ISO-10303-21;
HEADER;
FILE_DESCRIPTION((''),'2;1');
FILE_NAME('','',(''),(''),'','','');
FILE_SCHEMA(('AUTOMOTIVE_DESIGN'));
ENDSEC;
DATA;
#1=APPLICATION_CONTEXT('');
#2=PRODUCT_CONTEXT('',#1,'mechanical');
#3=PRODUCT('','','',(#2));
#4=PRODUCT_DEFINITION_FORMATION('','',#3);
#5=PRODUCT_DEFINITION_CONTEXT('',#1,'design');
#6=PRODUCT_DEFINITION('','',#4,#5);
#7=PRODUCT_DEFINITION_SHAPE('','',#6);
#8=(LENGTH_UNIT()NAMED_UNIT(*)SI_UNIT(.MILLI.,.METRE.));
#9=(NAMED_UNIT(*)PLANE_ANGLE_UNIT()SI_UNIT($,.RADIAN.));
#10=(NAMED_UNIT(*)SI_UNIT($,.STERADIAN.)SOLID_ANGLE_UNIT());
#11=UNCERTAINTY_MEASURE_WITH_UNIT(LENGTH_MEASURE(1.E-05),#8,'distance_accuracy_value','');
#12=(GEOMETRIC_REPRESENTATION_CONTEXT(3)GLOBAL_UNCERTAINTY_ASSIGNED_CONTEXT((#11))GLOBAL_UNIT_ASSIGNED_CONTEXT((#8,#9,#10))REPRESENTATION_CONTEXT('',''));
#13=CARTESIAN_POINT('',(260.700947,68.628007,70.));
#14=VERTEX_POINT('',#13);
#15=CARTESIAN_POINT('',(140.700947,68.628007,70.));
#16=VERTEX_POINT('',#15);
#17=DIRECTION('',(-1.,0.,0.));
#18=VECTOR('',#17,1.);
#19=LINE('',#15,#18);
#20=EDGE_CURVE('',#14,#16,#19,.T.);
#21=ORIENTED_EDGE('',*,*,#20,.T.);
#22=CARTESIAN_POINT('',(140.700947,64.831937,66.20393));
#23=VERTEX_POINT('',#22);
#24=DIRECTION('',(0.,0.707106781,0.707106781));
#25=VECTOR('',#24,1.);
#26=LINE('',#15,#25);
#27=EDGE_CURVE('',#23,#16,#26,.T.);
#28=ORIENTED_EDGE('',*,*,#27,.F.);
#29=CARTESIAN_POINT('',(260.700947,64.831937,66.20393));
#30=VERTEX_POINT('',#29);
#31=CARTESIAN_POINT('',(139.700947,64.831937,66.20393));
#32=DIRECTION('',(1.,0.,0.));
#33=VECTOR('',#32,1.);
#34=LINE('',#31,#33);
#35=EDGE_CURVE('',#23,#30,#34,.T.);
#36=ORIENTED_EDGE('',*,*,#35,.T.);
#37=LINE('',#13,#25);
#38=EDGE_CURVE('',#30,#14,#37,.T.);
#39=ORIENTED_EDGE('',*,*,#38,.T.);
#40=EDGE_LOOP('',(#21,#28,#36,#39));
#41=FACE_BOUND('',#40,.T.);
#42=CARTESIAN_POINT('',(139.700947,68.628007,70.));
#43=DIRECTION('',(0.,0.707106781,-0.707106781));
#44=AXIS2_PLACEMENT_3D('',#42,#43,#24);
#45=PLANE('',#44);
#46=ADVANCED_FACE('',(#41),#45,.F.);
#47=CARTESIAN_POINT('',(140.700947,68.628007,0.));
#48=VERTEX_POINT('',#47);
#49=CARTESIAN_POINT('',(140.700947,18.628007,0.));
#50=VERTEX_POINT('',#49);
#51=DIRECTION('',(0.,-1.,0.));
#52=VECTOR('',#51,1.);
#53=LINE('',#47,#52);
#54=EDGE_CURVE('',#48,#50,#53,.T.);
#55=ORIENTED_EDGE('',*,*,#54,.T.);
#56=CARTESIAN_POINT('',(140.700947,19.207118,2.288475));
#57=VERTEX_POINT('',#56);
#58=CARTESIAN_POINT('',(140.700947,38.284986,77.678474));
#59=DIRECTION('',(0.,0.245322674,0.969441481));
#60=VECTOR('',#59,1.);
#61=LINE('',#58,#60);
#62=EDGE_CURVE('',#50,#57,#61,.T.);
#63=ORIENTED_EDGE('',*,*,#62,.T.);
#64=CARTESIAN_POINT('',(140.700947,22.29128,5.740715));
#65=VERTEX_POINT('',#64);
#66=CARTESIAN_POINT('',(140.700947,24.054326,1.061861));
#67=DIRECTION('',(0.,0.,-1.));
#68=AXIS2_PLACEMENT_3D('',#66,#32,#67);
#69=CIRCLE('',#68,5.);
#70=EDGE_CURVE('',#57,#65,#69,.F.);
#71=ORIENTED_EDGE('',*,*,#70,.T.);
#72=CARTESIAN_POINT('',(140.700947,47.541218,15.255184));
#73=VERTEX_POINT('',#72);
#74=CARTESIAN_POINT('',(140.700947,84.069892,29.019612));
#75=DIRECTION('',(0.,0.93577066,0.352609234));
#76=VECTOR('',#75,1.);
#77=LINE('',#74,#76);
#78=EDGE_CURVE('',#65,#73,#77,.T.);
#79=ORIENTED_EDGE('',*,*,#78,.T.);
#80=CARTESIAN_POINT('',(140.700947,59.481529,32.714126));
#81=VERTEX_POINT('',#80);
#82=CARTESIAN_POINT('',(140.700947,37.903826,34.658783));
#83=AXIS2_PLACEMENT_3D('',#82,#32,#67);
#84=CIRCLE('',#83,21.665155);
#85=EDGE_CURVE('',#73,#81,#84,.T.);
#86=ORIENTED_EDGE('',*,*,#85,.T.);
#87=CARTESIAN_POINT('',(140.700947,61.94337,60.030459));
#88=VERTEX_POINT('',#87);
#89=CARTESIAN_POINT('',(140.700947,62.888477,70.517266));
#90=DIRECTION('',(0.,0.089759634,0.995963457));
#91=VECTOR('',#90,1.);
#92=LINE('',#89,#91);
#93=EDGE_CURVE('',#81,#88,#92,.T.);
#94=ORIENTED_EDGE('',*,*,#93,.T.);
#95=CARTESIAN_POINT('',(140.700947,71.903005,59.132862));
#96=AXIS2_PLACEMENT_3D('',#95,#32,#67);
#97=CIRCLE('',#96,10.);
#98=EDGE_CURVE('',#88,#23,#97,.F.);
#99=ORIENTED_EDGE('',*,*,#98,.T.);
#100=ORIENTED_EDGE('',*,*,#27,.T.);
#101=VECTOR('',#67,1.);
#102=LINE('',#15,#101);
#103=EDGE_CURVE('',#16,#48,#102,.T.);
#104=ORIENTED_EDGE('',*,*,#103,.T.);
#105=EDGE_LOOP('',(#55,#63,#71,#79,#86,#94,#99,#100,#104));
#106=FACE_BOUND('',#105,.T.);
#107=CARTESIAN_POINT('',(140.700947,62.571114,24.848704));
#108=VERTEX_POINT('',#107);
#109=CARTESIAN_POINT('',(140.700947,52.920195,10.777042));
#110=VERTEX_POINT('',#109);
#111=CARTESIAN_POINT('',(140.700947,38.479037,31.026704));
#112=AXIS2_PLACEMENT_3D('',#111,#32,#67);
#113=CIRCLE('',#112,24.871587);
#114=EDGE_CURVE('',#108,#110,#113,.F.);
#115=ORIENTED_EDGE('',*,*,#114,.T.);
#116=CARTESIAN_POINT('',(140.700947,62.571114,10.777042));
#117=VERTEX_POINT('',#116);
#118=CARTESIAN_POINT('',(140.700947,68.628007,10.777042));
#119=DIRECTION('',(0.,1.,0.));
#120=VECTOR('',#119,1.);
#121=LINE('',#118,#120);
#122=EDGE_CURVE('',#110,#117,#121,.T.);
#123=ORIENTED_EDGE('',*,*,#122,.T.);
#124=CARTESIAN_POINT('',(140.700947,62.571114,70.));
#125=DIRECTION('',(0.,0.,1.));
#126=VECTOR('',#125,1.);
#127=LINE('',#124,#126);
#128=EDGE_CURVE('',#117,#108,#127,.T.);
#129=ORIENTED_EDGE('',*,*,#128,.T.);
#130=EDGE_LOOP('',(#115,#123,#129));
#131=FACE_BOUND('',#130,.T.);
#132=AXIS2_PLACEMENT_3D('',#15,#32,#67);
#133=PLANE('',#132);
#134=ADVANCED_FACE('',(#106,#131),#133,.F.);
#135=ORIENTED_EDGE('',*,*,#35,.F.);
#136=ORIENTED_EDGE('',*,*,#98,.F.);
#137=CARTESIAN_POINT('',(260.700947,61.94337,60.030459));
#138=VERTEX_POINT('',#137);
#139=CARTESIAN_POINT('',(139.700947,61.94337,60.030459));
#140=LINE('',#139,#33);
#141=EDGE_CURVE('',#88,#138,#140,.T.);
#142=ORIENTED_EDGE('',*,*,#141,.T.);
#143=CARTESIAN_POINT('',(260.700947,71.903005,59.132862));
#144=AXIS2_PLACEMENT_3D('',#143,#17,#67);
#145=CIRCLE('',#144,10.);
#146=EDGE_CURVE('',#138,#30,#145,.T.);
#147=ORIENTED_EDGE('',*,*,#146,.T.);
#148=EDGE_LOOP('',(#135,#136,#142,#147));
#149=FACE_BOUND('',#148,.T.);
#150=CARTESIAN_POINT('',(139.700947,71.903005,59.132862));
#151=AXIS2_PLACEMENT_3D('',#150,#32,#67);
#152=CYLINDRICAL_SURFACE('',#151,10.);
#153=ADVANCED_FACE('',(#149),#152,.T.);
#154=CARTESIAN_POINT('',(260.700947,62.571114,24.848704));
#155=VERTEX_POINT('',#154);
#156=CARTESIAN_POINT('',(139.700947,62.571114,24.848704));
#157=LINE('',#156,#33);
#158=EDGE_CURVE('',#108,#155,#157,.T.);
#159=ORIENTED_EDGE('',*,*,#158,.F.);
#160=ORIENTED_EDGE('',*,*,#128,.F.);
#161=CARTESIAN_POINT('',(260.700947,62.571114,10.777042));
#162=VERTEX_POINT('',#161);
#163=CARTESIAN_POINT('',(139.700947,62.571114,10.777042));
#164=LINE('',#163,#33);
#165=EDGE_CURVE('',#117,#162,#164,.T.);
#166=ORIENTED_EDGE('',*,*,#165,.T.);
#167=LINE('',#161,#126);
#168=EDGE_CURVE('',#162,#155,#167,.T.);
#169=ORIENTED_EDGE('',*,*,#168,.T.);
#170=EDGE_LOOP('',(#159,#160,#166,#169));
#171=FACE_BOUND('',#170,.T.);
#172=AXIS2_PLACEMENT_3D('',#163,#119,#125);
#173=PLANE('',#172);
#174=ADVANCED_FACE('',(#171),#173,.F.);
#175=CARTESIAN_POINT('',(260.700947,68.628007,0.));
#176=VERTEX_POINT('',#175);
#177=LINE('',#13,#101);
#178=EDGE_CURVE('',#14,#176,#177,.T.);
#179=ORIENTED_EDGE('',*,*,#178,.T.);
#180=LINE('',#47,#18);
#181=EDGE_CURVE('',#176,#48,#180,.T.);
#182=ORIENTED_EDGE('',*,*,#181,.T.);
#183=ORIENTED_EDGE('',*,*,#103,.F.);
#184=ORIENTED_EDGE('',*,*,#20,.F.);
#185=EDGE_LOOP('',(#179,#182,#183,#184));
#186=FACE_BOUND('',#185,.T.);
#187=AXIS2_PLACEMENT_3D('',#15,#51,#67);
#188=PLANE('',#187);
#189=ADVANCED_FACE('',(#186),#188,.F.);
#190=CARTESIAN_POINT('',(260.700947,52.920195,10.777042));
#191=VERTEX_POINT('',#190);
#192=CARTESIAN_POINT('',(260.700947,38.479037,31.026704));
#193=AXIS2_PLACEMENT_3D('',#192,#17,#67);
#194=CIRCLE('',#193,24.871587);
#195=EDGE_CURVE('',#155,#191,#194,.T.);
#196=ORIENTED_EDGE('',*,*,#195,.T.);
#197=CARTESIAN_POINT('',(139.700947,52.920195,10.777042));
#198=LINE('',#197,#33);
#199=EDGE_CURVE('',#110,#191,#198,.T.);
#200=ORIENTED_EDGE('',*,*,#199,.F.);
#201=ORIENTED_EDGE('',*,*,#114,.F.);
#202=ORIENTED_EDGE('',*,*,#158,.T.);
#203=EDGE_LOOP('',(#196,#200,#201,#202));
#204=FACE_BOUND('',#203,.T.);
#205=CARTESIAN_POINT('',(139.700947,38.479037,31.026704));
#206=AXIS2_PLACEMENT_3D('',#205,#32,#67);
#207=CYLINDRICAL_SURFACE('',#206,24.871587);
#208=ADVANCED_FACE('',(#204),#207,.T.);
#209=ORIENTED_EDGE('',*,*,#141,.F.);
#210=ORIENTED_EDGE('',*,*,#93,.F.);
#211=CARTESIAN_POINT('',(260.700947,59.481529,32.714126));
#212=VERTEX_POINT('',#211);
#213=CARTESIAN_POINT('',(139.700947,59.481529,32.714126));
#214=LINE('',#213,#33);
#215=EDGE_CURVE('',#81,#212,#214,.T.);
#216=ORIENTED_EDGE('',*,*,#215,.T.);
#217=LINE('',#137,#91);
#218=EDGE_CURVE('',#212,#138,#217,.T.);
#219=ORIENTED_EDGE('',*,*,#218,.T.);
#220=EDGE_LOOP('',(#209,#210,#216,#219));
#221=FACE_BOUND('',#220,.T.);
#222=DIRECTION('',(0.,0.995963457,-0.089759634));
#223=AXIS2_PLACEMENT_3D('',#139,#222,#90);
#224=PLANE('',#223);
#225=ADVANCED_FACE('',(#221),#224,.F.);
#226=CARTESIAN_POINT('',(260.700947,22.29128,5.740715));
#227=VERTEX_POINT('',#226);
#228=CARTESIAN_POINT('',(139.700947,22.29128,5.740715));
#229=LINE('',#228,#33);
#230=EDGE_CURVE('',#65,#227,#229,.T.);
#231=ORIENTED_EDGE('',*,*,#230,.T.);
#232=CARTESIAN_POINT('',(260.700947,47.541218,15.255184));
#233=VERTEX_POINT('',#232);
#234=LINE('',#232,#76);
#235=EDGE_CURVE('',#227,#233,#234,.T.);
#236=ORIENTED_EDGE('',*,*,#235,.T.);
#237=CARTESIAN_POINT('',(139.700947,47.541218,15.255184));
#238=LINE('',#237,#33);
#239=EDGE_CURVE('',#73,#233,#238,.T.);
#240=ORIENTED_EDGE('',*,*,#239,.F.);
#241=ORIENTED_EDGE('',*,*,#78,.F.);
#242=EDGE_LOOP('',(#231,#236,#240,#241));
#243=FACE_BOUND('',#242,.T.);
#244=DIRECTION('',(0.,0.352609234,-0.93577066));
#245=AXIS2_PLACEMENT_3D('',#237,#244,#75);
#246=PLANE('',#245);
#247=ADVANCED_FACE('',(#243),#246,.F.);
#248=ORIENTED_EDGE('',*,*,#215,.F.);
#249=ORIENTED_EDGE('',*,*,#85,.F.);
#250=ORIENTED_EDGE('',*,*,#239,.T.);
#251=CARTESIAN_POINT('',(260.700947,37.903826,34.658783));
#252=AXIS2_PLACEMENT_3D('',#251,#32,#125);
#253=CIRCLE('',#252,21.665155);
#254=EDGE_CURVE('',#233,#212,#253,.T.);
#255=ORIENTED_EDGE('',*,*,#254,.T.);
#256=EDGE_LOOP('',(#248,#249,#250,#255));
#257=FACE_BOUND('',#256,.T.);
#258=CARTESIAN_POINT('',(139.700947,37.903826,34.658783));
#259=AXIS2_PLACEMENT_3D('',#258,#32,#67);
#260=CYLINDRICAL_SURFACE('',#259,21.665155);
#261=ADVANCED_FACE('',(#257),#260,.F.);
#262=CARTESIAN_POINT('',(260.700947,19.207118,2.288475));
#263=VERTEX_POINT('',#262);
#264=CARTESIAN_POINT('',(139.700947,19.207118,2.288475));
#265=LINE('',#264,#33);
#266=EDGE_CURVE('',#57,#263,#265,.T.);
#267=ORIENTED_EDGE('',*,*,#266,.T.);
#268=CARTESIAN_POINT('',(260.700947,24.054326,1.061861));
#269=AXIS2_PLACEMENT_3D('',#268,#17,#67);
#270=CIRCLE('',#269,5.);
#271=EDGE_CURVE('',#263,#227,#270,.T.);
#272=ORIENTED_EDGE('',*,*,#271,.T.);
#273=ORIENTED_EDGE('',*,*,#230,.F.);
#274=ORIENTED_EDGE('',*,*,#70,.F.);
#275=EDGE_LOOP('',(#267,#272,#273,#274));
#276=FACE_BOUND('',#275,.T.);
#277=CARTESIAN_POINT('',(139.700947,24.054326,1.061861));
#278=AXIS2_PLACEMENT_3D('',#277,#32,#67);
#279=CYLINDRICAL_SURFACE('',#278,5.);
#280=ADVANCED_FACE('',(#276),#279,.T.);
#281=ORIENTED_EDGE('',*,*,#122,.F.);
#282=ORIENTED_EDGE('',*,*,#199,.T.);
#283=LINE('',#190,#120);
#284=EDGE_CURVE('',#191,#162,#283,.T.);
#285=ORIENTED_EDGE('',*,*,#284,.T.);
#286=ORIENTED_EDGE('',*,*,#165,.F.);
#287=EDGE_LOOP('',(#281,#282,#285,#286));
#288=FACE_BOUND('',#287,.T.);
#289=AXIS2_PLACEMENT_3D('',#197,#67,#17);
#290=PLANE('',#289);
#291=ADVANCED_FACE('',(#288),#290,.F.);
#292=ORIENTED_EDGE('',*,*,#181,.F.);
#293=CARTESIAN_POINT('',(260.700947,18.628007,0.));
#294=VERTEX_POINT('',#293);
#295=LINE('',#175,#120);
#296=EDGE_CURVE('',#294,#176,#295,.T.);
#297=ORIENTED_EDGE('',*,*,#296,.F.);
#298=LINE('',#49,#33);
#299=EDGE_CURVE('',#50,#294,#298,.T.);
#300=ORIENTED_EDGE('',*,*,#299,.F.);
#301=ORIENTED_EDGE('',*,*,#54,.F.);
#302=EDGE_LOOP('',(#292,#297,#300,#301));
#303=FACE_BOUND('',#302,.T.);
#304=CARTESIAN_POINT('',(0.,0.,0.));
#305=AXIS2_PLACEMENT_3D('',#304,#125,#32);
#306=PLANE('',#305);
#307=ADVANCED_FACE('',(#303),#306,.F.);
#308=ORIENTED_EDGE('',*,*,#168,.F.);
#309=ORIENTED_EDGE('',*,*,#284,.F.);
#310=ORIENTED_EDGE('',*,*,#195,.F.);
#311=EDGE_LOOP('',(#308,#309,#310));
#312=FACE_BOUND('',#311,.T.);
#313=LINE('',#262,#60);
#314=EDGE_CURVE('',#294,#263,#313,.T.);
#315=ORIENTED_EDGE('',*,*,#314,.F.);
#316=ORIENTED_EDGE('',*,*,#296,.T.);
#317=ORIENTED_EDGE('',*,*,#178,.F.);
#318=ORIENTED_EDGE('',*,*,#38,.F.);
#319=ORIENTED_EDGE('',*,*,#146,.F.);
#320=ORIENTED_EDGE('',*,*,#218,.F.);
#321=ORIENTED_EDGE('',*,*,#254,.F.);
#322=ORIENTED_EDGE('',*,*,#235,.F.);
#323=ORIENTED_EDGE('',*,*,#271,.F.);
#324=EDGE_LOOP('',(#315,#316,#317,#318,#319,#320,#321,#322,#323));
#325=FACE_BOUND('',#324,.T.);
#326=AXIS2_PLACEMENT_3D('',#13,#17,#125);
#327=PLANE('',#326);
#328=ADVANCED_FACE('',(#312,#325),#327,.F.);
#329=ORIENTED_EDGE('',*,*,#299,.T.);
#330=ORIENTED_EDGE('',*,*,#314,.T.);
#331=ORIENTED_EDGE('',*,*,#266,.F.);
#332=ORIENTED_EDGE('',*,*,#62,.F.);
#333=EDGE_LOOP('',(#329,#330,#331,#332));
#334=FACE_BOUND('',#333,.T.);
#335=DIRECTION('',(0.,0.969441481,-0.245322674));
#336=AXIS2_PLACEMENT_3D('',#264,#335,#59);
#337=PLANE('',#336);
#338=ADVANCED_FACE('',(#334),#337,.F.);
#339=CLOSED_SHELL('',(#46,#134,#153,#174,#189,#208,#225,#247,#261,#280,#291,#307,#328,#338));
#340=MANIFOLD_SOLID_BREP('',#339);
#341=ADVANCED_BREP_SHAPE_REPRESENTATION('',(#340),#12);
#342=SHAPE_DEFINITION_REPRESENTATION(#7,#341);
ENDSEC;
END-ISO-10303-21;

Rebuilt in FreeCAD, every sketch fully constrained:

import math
import FreeCAD as App
import Part
import Sketcher
from FreeCAD import Vector
Q = App.Units.Quantity


def add_polygon(sketch, points):
    """Adds a closed chain of lines whose ends are joined by coincident constraints."""
    first, n = sketch.GeometryCount, len(points)
    for a, b in zip(points, points[1:] + points[:1]):
        sketch.addGeometry(Part.LineSegment(App.Vector(*a, 0), App.Vector(*b, 0)), False)
    for i in range(n):
        sketch.addConstraint(Sketcher.Constraint("Coincident", first + i, 2, first + (i + 1) % n, 1))

doc = App.newDocument("Part")
body = doc.addObject("PartDesign::Body", "Body")

sketch1 = doc.addObject("Sketcher::SketchObject", "Sketch")
body.addObject(sketch1)
sketch1.AttachmentSupport = (doc.XY_Plane, [""])
sketch1.MapMode = "FlatFace"
add_polygon(sketch1, [(141, 69), (141, 19), (261, 19), (261, 69)])
sketch1.addConstraint(Sketcher.Constraint("Vertical", 0))
sketch1.addConstraint(Sketcher.Constraint("Horizontal", 1))
sketch1.addConstraint(Sketcher.Constraint("Vertical", 2))
sketch1.addConstraint(Sketcher.Constraint("Horizontal", 3))
sketch1.addConstraint(Sketcher.Constraint("DistanceX", 1, 1, 1, 2, Q("120 mm")))
sketch1.addConstraint(Sketcher.Constraint("DistanceY", 0, 2, 0, 1, Q("50 mm")))
sketch1.addConstraint(Sketcher.Constraint("DistanceX", -1, 1, 0, 2, Q("140.700947 mm")))
sketch1.addConstraint(Sketcher.Constraint("DistanceY", -1, 1, 0, 2, Q("18.628007 mm")))
pad1 = doc.addObject("PartDesign::Pad", "Pad")
body.addObject(pad1)
pad1.Profile = sketch1
pad1.Length = 70

sketch2 = doc.addObject("Sketcher::SketchObject", "Sketch001")
body.addObject(sketch2)
sketch2.AttachmentSupport = (doc.YZ_Plane, [""])
sketch2.MapMode = "FlatFace"
sketch2.AttachmentOffset = App.Placement(Vector(0, 0, 260.700947), App.Rotation())
sketch2.addGeometry(Part.LineSegment(Vector(64.8, 66.2, 0), Vector(68.6, 70, 0)), False)
sketch2.addGeometry(Part.LineSegment(Vector(68.6, 70, 0), Vector(18.6, 70, 0)), False)
sketch2.addGeometry(Part.LineSegment(Vector(18.6, 70, 0), Vector(18.6, 0, 0)), False)
sketch2.addGeometry(Part.LineSegment(Vector(18.6, 0, 0), Vector(19.2, 2.3, 0)), False)
sketch2.addGeometry(Part.ArcOfCircle(Part.Circle(Vector(24.1, 1.1, 0), Vector(0, 0, 1), 5), math.radians(111), math.radians(166)), False)
sketch2.addGeometry(Part.LineSegment(Vector(22.3, 5.7, 0), Vector(47.5, 15.3, 0)), False)
sketch2.addGeometry(Part.ArcOfCircle(Part.Circle(Vector(37.9, 34.7, 0), Vector(0, 0, 1), 21.7), math.radians(-64), math.radians(-5)), False)
sketch2.addGeometry(Part.LineSegment(Vector(59.5, 32.7, 0), Vector(61.9, 60, 0)), False)
sketch2.addGeometry(Part.ArcOfCircle(Part.Circle(Vector(71.9, 59.1, 0), Vector(0, 0, 1), 10), math.radians(135), math.radians(175)), False)
sketch2.addGeometry(Part.LineSegment(Vector(52.9, 10.8, 0), Vector(62.6, 10.8, 0)), False)
sketch2.addGeometry(Part.LineSegment(Vector(62.6, 10.8, 0), Vector(62.6, 24.8, 0)), False)
sketch2.addGeometry(Part.ArcOfCircle(Part.Circle(Vector(38.5, 31, 0), Vector(0, 0, 1), 24.9), math.radians(-55), math.radians(-14)), False)
sketch2.addConstraint(Sketcher.Constraint("Coincident", 0, 2, 1, 1))
sketch2.addConstraint(Sketcher.Constraint("Coincident", 1, 2, 2, 1))
sketch2.addConstraint(Sketcher.Constraint("Coincident", 2, 2, 3, 1))
sketch2.addConstraint(Sketcher.Constraint("Tangent", 3, 2, 4, 2))
sketch2.addConstraint(Sketcher.Constraint("Tangent", 4, 1, 5, 1))
sketch2.addConstraint(Sketcher.Constraint("Coincident", 5, 2, 6, 1))
sketch2.addConstraint(Sketcher.Constraint("Tangent", 6, 2, 7, 1))
sketch2.addConstraint(Sketcher.Constraint("Tangent", 7, 2, 8, 2))
sketch2.addConstraint(Sketcher.Constraint("Tangent", 8, 1, 0, 1))
sketch2.addConstraint(Sketcher.Constraint("Coincident", 9, 2, 10, 1))
sketch2.addConstraint(Sketcher.Constraint("Coincident", 10, 2, 11, 2))
sketch2.addConstraint(Sketcher.Constraint("Coincident", 11, 1, 9, 1))
sketch2.addConstraint(Sketcher.Constraint("Horizontal", 1))
sketch2.addConstraint(Sketcher.Constraint("Vertical", 2))
sketch2.addConstraint(Sketcher.Constraint("Horizontal", 9))
sketch2.addConstraint(Sketcher.Constraint("Vertical", 10))
sketch2.addConstraint(Sketcher.Constraint("PointOnObject", 2, 2, -1))
sketch2.addConstraint(Sketcher.Constraint("Radius", 4, Q("5 mm")))
sketch2.addConstraint(Sketcher.Constraint("Radius", 8, Q("10 mm")))
sketch2.addConstraint(Sketcher.Constraint("DistanceX", 1, 2, 1, 1, Q("50 mm")))
sketch2.addConstraint(Sketcher.Constraint("DistanceY", 2, 2, 2, 1, Q("70 mm")))
sketch2.addConstraint(Sketcher.Constraint("Angle", 0, Q("45 deg")))
sketch2.addConstraint(Sketcher.Constraint("Radius", 6, Q("21.665155 mm")))
sketch2.addConstraint(Sketcher.Constraint("Radius", 11, Q("24.871587 mm")))
sketch2.addConstraint(Sketcher.Constraint("DistanceY", 4, 3, 8, 3, Q("58.071001 mm")))
sketch2.addConstraint(Sketcher.Constraint("DistanceY", 10, 2, 11, 3, Q("6.178 mm")))
sketch2.addConstraint(Sketcher.Constraint("DistanceX", 9, 1, 9, 2, Q("9.650918 mm")))
sketch2.addConstraint(Sketcher.Constraint("DistanceX", 4, 3, 6, 3, Q("13.8495 mm")))
sketch2.addConstraint(Sketcher.Constraint("DistanceY", 5, 2, 6, 3, Q("19.403598 mm")))
sketch2.addConstraint(Sketcher.Constraint("DistanceX", 3, 2, 5, 2, Q("28.3341 mm")))
sketch2.addConstraint(Sketcher.Constraint("Distance", 3, Q("2.360612 mm")))
sketch2.addConstraint(Sketcher.Constraint("Distance", 5, Q("26.983041 mm")))
sketch2.addConstraint(Sketcher.Constraint("DistanceX", -1, 1, 3, 2, Q("19.207118 mm")))
sketch2.addConstraint(Sketcher.Constraint("DistanceX", 6, 3, 11, 3, Q("0.575211 mm")))
sketch2.addConstraint(Sketcher.Constraint("DistanceY", 11, 3, 6, 3, Q("3.632079 mm")))
pocket1 = doc.addObject("PartDesign::Pocket", "Pocket")
body.addObject(pocket1)
pocket1.Profile = sketch2
pocket1.Length = 121

doc.recompute()
